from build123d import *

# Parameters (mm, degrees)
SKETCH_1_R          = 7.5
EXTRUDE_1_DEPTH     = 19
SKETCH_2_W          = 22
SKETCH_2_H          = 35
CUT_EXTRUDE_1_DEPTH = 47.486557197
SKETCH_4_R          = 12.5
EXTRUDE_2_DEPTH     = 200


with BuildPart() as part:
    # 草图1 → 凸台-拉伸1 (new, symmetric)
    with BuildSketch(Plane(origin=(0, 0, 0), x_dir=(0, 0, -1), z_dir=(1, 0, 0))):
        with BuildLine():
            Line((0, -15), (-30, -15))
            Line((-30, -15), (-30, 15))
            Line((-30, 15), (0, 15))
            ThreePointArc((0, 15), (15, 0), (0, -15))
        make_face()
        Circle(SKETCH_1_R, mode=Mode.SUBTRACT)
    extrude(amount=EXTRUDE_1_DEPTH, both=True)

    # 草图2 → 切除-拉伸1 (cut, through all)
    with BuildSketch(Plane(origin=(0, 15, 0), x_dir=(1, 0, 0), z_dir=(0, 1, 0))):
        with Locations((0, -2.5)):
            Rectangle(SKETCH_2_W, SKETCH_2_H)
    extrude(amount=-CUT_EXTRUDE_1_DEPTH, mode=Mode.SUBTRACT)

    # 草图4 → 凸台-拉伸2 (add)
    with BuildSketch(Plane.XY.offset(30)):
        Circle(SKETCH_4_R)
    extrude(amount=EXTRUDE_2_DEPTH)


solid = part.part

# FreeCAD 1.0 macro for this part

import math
import FreeCAD as App
import Part
import Sketcher

doc = App.newDocument("Part")
body = doc.addObject("PartDesign::Body", "Body")

# Sketch on YZ plane
sketch1 = body.newObject("Sketcher::SketchObject", "Sketch")
sketch1.AttachmentSupport = (doc.getObject("YZ_Plane"), [""])
sketch1.MapMode = "FlatFace"
sketch1.addGeometry([
    Part.LineSegment(App.Vector(-15, 30, 0), App.Vector(-15, 0, 0)),  # 0
    Part.ArcOfCircle(Part.Circle(App.Vector(0, 0, 0), App.Vector(0, 0, 1), 15), math.radians(180), math.radians(360)),  # 1
    Part.LineSegment(App.Vector(15, 0, 0), App.Vector(15, 30, 0)),  # 2
    Part.LineSegment(App.Vector(15, 30, 0), App.Vector(-15, 30, 0)),  # 3
    Part.Circle(App.Vector(0, 0, 0), App.Vector(0, 0, 1), 8),  # 4
], False)
sketch1.addConstraint([
    Sketcher.Constraint("Tangent", 0, 2, 1, 1),
    Sketcher.Constraint("Tangent", 1, 2, 2, 1),
    Sketcher.Constraint("Coincident", 2, 2, 3, 1),
    Sketcher.Constraint("Coincident", 3, 2, 0, 1),
    Sketcher.Constraint("Vertical", 0),
    Sketcher.Constraint("Vertical", 2),
    Sketcher.Constraint("Horizontal", 3),
    Sketcher.Constraint("Coincident", 1, 3, -1, 1),
    Sketcher.Constraint("Coincident", 4, 3, -1, 1),
    Sketcher.Constraint("Equal", 3, 0),
    Sketcher.Constraint("Diameter", 4, 15.0),
    Sketcher.Constraint("Radius", 1, 15.0),
])
pad1 = body.newObject("PartDesign::Pad", "Pad")
pad1.Profile = sketch1
pad1.Length = 38
pad1.Midplane = True

# Sketch on XZ plane
sketch2 = body.newObject("Sketcher::SketchObject", "Sketch001")
sketch2.AttachmentSupport = (doc.getObject("XZ_Plane"), [""])
sketch2.MapMode = "FlatFace"
sketch2.AttachmentOffset = App.Placement(App.Vector(0, 0, -15), App.Rotation())
sketch2.addGeometry([
    Part.LineSegment(App.Vector(-11, -15, 0), App.Vector(-11, 20, 0)),
    Part.LineSegment(App.Vector(-11, 20, 0), App.Vector(11, 20, 0)),
    Part.LineSegment(App.Vector(11, 20, 0), App.Vector(11, -15, 0)),
    Part.LineSegment(App.Vector(11, -15, 0), App.Vector(-11, -15, 0)),
], False)
sketch2.addConstraint([
    Sketcher.Constraint("Coincident", 0, 2, 1, 1),
    Sketcher.Constraint("Coincident", 1, 2, 2, 1),
    Sketcher.Constraint("Coincident", 2, 2, 3, 1),
    Sketcher.Constraint("Coincident", 3, 2, 0, 1),
    Sketcher.Constraint("Vertical", 0),
    Sketcher.Constraint("Horizontal", 1),
    Sketcher.Constraint("Vertical", 2),
    Sketcher.Constraint("Horizontal", 3),
    Sketcher.Constraint("DistanceX", 1, 1, 1, 2, 22.0),
    Sketcher.Constraint("DistanceY", 0, 1, 0, 2, 35.0),
    Sketcher.Constraint("DistanceX", 0, 2, -1, 1, 11.0),
    Sketcher.Constraint("DistanceY", -1, 1, 0, 2, 20.0),
])
pocket1 = body.newObject("PartDesign::Pocket", "Pocket")
pocket1.Profile = sketch2
pocket1.Type = "ThroughAll"
pocket1.Reversed = True

# Sketch on XY plane
sketch3 = body.newObject("Sketcher::SketchObject", "Sketch002")
sketch3.AttachmentSupport = (doc.getObject("XY_Plane"), [""])
sketch3.MapMode = "FlatFace"
sketch3.AttachmentOffset = App.Placement(App.Vector(0, 0, 30), App.Rotation())
sketch3.addGeometry(Part.Circle(App.Vector(0, 0, 0), App.Vector(0, 0, 1), 12), False)
sketch3.addConstraint([
    Sketcher.Constraint("Coincident", 0, 3, -1, 1),
    Sketcher.Constraint("Diameter", 0, 25.0),
])
pad2 = body.newObject("PartDesign::Pad", "Pad001")
pad2.Profile = sketch3
pad2.Length = 200

doc.recompute()
